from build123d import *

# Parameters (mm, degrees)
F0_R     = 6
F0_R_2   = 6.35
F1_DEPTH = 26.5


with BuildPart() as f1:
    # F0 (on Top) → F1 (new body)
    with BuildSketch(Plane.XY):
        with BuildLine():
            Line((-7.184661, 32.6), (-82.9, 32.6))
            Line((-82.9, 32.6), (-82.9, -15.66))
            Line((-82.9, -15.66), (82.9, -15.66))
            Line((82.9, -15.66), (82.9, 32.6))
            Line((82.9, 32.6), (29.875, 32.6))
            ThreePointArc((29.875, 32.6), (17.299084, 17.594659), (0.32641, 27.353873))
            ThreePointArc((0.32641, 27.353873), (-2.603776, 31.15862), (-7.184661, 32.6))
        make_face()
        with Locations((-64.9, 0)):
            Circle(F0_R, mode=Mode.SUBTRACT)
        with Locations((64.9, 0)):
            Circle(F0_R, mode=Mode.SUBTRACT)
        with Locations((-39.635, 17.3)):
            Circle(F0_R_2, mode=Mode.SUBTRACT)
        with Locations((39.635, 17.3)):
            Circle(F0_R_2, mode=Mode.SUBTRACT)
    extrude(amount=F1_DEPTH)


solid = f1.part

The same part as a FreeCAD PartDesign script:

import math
import FreeCAD as App
import Part
import Sketcher

doc = App.newDocument("Part")
body = doc.addObject("PartDesign::Body", "Body")

# Sketch on XY plane
sketch1 = doc.addObject("Sketcher::SketchObject", "Sketch")
body.addObject(sketch1)
sketch1.AttachmentSupport = (doc.XY_Plane, [""])
sketch1.MapMode = "FlatFace"
sketch1.addGeometry([
    Part.LineSegment(App.Vector(-7, 33, 0), App.Vector(-83, 33, 0)),  # 0
    Part.LineSegment(App.Vector(-83, 33, 0), App.Vector(-83, -16, 0)),  # 1
    Part.LineSegment(App.Vector(-83, -16, 0), App.Vector(83, -16, 0)),  # 2
    Part.LineSegment(App.Vector(83, -16, 0), App.Vector(83, 33, 0)),  # 3
    Part.LineSegment(App.Vector(83, 33, 0), App.Vector(30, 33, 0)),  # 4
    Part.ArcOfCircle(Part.Circle(App.Vector(15, 33, 0), App.Vector(0, 0, 1), 15), math.radians(-160), math.radians(0)),  # 5
    Part.ArcOfCircle(Part.Circle(App.Vector(-7, 25, 0), App.Vector(0, 0, 1), 8), math.radians(20), math.radians(90)),  # 6
    Part.Circle(App.Vector(-65, 0, 0), App.Vector(0, 0, 1), 6),  # 7
    Part.Circle(App.Vector(65, 0, 0), App.Vector(0, 0, 1), 6),  # 8
    Part.Circle(App.Vector(-40, 17, 0), App.Vector(0, 0, 1), 6),  # 9
    Part.Circle(App.Vector(40, 17, 0), App.Vector(0, 0, 1), 6),  # 10
], False)
sketch1.addConstraint([
    Sketcher.Constraint("Coincident", 0, 2, 1, 1),
    Sketcher.Constraint("Coincident", 1, 2, 2, 1),
    Sketcher.Constraint("Coincident", 2, 2, 3, 1),
    Sketcher.Constraint("Coincident", 3, 2, 4, 1),
    Sketcher.Constraint("Coincident", 4, 2, 5, 2),
    Sketcher.Constraint("Tangent", 5, 1, 6, 1),
    Sketcher.Constraint("Tangent", 6, 2, 0, 1),
    Sketcher.Constraint("Horizontal", 0),
    Sketcher.Constraint("Vertical", 1),
    Sketcher.Constraint("Horizontal", 2),
    Sketcher.Constraint("Vertical", 3),
    Sketcher.Constraint("Horizontal", 4),
    Sketcher.Constraint("Equal", 7, 8),
    Sketcher.Constraint("Equal", 9, 10),
    Sketcher.Constraint("Symmetric", 7, 3, 8, 3, -1, 1),
    Sketcher.Constraint("Symmetric", 9, 3, 10, 3, -2),
    Sketcher.Constraint("Symmetric", 0, 2, 3, 2, -2),
    Sketcher.Constraint("PointOnObject", 7, 3, -1),
    Sketcher.Constraint("Horizontal", 5, 3, 0, 2),
    Sketcher.Constraint("Diameter", 7, 12.0),
    Sketcher.Constraint("Radius", 6, 8.0),
    Sketcher.Constraint("Diameter", 9, 12.7),
    Sketcher.Constraint("Radius", 5, 15.24),
    Sketcher.Constraint("DistanceX", 2, 1, 2, 2, 165.8),
    Sketcher.Constraint("DistanceX", 5, 3, 10, 3, 25.0),
    Sketcher.Constraint("DistanceX", 0, 2, 7, 3, 18.0),
    Sketcher.Constraint("DistanceY", 1, 2, 1, 1, 48.26),
    Sketcher.Constraint("DistanceY", -1, 1, 5, 3, 32.6),
    Sketcher.Constraint("DistanceY", -1, 1, 9, 3, 17.3),
    Sketcher.Constraint("DistanceX", 4, 2, 4, 1, 53.025),
])
pad1 = doc.addObject("PartDesign::Pad", "Pad")
body.addObject(pad1)
pad1.Profile = sketch1
pad1.Length = 26.5

doc.recompute()
